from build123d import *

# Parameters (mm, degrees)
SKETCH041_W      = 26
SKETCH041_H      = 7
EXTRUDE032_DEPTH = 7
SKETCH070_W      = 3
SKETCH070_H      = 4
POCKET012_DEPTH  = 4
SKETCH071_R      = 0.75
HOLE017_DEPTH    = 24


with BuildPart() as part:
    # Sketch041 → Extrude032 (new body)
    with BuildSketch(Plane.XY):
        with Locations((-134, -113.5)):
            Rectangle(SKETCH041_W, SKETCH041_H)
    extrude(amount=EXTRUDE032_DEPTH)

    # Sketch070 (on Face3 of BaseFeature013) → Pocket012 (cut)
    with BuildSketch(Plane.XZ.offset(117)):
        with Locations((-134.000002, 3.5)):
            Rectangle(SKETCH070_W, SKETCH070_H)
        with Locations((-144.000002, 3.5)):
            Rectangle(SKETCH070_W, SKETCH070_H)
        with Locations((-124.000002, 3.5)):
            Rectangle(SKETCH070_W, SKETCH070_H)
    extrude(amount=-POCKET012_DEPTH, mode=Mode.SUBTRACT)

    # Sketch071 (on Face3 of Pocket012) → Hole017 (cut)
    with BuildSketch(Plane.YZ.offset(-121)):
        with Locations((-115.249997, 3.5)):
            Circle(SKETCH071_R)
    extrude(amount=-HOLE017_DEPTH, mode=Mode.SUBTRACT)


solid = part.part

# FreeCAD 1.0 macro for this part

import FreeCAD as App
import Part
import Sketcher

V = App.Vector
Q = App.Units.Quantity


def add_polygon(sketch, points):
    """Adds a closed chain of lines whose ends are joined by coincident constraints."""
    first, n = sketch.GeometryCount, len(points)
    for a, b in zip(points, points[1:] + points[:1]):
        sketch.addGeometry(Part.LineSegment(App.Vector(*a, 0), App.Vector(*b, 0)), False)
    for i in range(n):
        sketch.addConstraint(Sketcher.Constraint("Coincident", first + i, 2, first + (i + 1) % n, 1))

doc = App.newDocument("Part")
body = doc.addObject("PartDesign::Body", "Body")

sketch1 = body.newObject("Sketcher::SketchObject", "Sketch")
sketch1.AttachmentSupport = (doc.getObject("XY_Plane"), [""])
sketch1.MapMode = "FlatFace"
add_polygon(sketch1, [(-147, -110), (-147, -117), (-121, -117), (-121, -110)])
sketch1.addConstraint(Sketcher.Constraint("Vertical", 0))
sketch1.addConstraint(Sketcher.Constraint("Horizontal", 1))
sketch1.addConstraint(Sketcher.Constraint("Vertical", 2))
sketch1.addConstraint(Sketcher.Constraint("Horizontal", 3))
sketch1.addConstraint(Sketcher.Constraint("DistanceX", 1, 1, 1, 2, Q("26 mm")))
sketch1.addConstraint(Sketcher.Constraint("DistanceY", 0, 2, 0, 1, Q("7 mm")))
sketch1.addConstraint(Sketcher.Constraint("DistanceX", 0, 2, -1, 1, Q("147 mm")))
sketch1.addConstraint(Sketcher.Constraint("DistanceY", 0, 2, -1, 1, Q("117 mm")))
pad1 = body.newObject("PartDesign::Pad", "Pad")
pad1.Profile = sketch1
pad1.Length = 7

sketch2 = body.newObject("Sketcher::SketchObject", "Sketch001")
sketch2.AttachmentSupport = (doc.getObject("XZ_Plane"), [""])
sketch2.MapMode = "FlatFace"
sketch2.AttachmentOffset = App.Placement(V(0, 0, 117), App.Rotation())
add_polygon(sketch2, [(-135.5, 5.5), (-135.5, 1.5), (-132.5, 1.5), (-132.5, 5.5)])
add_polygon(sketch2, [(-145.5, 5.5), (-145.5, 1.5), (-142.5, 1.5), (-142.5, 5.5)])
add_polygon(sketch2, [(-125.5, 5.5), (-125.5, 1.5), (-122.5, 1.5), (-122.5, 5.5)])
sketch2.addConstraint(Sketcher.Constraint("Vertical", 0))
sketch2.addConstraint(Sketcher.Constraint("Horizontal", 1))
sketch2.addConstraint(Sketcher.Constraint("Vertical", 2))
sketch2.addConstraint(Sketcher.Constraint("Horizontal", 3))
sketch2.addConstraint(Sketcher.Constraint("Vertical", 4))
sketch2.addConstraint(Sketcher.Constraint("Horizontal", 5))
sketch2.addConstraint(Sketcher.Constraint("Vertical", 6))
sketch2.addConstraint(Sketcher.Constraint("Horizontal", 7))
sketch2.addConstraint(Sketcher.Constraint("Vertical", 8))
sketch2.addConstraint(Sketcher.Constraint("Horizontal", 9))
sketch2.addConstraint(Sketcher.Constraint("Vertical", 10))
sketch2.addConstraint(Sketcher.Constraint("Horizontal", 11))
sketch2.addConstraint(Sketcher.Constraint("Horizontal", 1, 2, 4, 2))
sketch2.addConstraint(Sketcher.Constraint("Horizontal", 3, 2, 6, 2))
sketch2.addConstraint(Sketcher.Constraint("Horizontal", 5, 2, 8, 2))
sketch2.addConstraint(Sketcher.Constraint("Horizontal", 7, 2, 10, 2))
sketch2.addConstraint(Sketcher.Constraint("Equal", 3, 5))
sketch2.addConstraint(Sketcher.Constraint("Equal", 7, 9))
sketch2.addConstraint(Sketcher.Constraint("DistanceX", 1, 1, 1, 2, Q("3 mm")))
sketch2.addConstraint(Sketcher.Constraint("DistanceY", 0, 2, 0, 1, Q("4 mm")))
sketch2.addConstraint(Sketcher.Constraint("DistanceX", 4, 2, 0, 2, Q("10 mm")))
sketch2.addConstraint(Sketcher.Constraint("DistanceX", 1, 2, 8, 2, Q("7 mm")))
sketch2.addConstraint(Sketcher.Constraint("DistanceX", 0, 2, -1, 1, Q("135.500002 mm")))
sketch2.addConstraint(Sketcher.Constraint("DistanceY", -1, 1, 0, 2, Q("1.5 mm")))
pocket1 = body.newObject("PartDesign::Pocket", "Pocket")
pocket1.Profile = sketch2
pocket1.Length = 4

sketch3 = body.newObject("Sketcher::SketchObject", "Sketch002")
sketch3.AttachmentSupport = (doc.getObject("YZ_Plane"), [""])
sketch3.MapMode = "FlatFace"
sketch3.AttachmentOffset = App.Placement(V(0, 0, -121), App.Rotation())
sketch3.addGeometry(Part.Circle(V(-115.2, 3.5, 0), V(0, 0, 1), 0.8), False)
sketch3.addConstraint(Sketcher.Constraint("Diameter", 0, Q("1.5 mm")))
sketch3.addConstraint(Sketcher.Constraint("DistanceY", -1, 1, 0, 3, Q("3.5 mm")))
sketch3.addConstraint(Sketcher.Constraint("DistanceX", 0, 3, -1, 1, Q("115.249997 mm")))
pocket2 = body.newObject("PartDesign::Pocket", "Pocket001")
pocket2.Profile = sketch3
pocket2.Length = 24

doc.recompute()
